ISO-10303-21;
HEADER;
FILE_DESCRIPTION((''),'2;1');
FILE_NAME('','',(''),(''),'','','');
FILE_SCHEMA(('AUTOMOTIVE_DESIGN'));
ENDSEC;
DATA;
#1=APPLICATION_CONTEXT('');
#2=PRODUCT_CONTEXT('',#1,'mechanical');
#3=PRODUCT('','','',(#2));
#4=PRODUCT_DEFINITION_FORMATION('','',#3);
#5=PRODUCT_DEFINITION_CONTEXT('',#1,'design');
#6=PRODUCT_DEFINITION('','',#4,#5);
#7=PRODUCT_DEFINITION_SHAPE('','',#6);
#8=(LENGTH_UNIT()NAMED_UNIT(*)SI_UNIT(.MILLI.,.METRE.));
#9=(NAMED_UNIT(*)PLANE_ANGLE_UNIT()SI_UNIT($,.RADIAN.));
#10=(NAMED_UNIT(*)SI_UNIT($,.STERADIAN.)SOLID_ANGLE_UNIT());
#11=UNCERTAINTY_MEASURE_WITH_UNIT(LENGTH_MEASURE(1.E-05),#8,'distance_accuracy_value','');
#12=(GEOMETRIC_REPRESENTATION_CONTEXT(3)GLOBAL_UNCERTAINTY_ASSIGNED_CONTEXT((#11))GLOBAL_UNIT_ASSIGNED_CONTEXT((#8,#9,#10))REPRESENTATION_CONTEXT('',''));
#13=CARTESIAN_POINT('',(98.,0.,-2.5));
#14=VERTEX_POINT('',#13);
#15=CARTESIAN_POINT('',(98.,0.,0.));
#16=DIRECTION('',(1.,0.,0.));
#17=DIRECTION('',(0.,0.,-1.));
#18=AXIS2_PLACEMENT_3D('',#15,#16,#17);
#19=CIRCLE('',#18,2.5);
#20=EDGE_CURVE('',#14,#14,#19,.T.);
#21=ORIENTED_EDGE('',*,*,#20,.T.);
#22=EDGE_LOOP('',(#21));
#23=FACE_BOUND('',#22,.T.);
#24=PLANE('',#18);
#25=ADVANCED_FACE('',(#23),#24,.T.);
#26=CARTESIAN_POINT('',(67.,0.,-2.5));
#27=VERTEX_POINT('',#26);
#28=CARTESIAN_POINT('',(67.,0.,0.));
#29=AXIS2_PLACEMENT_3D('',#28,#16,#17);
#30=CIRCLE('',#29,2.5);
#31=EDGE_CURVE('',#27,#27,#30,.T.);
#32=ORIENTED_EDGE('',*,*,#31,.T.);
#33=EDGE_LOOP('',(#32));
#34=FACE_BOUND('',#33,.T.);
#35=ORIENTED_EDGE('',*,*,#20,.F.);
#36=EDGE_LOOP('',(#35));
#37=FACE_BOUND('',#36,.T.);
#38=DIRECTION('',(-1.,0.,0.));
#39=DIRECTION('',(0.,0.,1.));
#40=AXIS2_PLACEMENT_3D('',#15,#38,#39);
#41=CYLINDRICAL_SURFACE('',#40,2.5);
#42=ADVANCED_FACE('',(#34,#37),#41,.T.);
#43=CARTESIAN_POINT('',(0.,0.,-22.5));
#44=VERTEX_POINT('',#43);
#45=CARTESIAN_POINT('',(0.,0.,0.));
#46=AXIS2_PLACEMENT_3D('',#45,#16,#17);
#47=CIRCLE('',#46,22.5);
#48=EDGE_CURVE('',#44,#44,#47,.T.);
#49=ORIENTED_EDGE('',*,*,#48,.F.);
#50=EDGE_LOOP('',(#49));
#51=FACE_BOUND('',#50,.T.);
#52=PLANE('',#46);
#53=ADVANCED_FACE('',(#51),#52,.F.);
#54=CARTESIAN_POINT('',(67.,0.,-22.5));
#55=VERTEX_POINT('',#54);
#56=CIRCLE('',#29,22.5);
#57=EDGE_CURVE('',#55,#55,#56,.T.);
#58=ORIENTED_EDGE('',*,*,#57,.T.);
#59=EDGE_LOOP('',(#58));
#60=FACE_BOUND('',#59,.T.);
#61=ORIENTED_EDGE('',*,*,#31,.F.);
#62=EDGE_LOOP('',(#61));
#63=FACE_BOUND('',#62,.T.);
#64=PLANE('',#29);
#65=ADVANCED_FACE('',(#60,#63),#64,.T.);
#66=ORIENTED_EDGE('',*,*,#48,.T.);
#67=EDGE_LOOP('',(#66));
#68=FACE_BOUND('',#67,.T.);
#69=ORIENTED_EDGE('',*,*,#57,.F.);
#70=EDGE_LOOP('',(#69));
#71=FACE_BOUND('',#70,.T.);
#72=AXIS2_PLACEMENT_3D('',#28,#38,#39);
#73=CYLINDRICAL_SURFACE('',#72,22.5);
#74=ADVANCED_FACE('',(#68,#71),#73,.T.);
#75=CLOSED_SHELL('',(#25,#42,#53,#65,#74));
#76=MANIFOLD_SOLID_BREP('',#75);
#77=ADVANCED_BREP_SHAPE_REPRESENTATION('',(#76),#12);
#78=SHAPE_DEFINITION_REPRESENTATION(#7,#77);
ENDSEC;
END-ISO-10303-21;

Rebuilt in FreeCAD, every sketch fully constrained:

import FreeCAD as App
import Part
import Sketcher

doc = App.newDocument("Part")
params = doc.addObject("Spreadsheet::Sheet", "Params")
for row, (alias, value) in enumerate([
    ("sketch1_diameter", "45 mm"),
    ("pad1_length", "67 mm"),
    ("sketch2_diameter", "5 mm"),
    ("pad2_length", "31 mm"),
], start=1):
    params.set(f"A{row}", alias)
    params.set(f"B{row}", "=" + value)
    params.setAlias(f"B{row}", alias)

body = doc.addObject("PartDesign::Body", "Body")

# Sketch on YZ plane
sketch1 = doc.addObject("Sketcher::SketchObject", "Sketch")
body.addObject(sketch1)
sketch1.AttachmentSupport = (doc.YZ_Plane, [""])
sketch1.MapMode = "FlatFace"
sketch1.addGeometry(Part.Circle(App.Vector(0, 0, 0), App.Vector(0, 0, 1), 22), False)
sketch1.addConstraint([
    Sketcher.Constraint("Coincident", 0, 3, -1, 1),
    Sketcher.Constraint("Diameter", 0, 45.0),
])
sketch1.setExpression("Constraints[1]", "Params.sketch1_diameter")
pad1 = doc.addObject("PartDesign::Pad", "Pad")
body.addObject(pad1)
pad1.Profile = sketch1
pad1.setExpression("Length", "Params.pad1_length")

# Sketch on YZ plane
sketch2 = doc.addObject("Sketcher::SketchObject", "Sketch001")
body.addObject(sketch2)
sketch2.AttachmentSupport = (doc.YZ_Plane, [""])
sketch2.MapMode = "FlatFace"
sketch2.AttachmentOffset = App.Placement(App.Vector(0, 0, 67), App.Rotation())
sketch2.addGeometry(Part.Circle(App.Vector(0, 0, 0), App.Vector(0, 0, 1), 2.5), False)
sketch2.addConstraint([
    Sketcher.Constraint("Coincident", 0, 3, -1, 1),
    Sketcher.Constraint("Diameter", 0, 5.0),
])
sketch2.setExpression("Constraints[1]", "Params.sketch2_diameter")
pad2 = doc.addObject("PartDesign::Pad", "Pad001")
body.addObject(pad2)
pad2.Profile = sketch2
pad2.setExpression("Length", "Params.pad2_length")

doc.recompute()
